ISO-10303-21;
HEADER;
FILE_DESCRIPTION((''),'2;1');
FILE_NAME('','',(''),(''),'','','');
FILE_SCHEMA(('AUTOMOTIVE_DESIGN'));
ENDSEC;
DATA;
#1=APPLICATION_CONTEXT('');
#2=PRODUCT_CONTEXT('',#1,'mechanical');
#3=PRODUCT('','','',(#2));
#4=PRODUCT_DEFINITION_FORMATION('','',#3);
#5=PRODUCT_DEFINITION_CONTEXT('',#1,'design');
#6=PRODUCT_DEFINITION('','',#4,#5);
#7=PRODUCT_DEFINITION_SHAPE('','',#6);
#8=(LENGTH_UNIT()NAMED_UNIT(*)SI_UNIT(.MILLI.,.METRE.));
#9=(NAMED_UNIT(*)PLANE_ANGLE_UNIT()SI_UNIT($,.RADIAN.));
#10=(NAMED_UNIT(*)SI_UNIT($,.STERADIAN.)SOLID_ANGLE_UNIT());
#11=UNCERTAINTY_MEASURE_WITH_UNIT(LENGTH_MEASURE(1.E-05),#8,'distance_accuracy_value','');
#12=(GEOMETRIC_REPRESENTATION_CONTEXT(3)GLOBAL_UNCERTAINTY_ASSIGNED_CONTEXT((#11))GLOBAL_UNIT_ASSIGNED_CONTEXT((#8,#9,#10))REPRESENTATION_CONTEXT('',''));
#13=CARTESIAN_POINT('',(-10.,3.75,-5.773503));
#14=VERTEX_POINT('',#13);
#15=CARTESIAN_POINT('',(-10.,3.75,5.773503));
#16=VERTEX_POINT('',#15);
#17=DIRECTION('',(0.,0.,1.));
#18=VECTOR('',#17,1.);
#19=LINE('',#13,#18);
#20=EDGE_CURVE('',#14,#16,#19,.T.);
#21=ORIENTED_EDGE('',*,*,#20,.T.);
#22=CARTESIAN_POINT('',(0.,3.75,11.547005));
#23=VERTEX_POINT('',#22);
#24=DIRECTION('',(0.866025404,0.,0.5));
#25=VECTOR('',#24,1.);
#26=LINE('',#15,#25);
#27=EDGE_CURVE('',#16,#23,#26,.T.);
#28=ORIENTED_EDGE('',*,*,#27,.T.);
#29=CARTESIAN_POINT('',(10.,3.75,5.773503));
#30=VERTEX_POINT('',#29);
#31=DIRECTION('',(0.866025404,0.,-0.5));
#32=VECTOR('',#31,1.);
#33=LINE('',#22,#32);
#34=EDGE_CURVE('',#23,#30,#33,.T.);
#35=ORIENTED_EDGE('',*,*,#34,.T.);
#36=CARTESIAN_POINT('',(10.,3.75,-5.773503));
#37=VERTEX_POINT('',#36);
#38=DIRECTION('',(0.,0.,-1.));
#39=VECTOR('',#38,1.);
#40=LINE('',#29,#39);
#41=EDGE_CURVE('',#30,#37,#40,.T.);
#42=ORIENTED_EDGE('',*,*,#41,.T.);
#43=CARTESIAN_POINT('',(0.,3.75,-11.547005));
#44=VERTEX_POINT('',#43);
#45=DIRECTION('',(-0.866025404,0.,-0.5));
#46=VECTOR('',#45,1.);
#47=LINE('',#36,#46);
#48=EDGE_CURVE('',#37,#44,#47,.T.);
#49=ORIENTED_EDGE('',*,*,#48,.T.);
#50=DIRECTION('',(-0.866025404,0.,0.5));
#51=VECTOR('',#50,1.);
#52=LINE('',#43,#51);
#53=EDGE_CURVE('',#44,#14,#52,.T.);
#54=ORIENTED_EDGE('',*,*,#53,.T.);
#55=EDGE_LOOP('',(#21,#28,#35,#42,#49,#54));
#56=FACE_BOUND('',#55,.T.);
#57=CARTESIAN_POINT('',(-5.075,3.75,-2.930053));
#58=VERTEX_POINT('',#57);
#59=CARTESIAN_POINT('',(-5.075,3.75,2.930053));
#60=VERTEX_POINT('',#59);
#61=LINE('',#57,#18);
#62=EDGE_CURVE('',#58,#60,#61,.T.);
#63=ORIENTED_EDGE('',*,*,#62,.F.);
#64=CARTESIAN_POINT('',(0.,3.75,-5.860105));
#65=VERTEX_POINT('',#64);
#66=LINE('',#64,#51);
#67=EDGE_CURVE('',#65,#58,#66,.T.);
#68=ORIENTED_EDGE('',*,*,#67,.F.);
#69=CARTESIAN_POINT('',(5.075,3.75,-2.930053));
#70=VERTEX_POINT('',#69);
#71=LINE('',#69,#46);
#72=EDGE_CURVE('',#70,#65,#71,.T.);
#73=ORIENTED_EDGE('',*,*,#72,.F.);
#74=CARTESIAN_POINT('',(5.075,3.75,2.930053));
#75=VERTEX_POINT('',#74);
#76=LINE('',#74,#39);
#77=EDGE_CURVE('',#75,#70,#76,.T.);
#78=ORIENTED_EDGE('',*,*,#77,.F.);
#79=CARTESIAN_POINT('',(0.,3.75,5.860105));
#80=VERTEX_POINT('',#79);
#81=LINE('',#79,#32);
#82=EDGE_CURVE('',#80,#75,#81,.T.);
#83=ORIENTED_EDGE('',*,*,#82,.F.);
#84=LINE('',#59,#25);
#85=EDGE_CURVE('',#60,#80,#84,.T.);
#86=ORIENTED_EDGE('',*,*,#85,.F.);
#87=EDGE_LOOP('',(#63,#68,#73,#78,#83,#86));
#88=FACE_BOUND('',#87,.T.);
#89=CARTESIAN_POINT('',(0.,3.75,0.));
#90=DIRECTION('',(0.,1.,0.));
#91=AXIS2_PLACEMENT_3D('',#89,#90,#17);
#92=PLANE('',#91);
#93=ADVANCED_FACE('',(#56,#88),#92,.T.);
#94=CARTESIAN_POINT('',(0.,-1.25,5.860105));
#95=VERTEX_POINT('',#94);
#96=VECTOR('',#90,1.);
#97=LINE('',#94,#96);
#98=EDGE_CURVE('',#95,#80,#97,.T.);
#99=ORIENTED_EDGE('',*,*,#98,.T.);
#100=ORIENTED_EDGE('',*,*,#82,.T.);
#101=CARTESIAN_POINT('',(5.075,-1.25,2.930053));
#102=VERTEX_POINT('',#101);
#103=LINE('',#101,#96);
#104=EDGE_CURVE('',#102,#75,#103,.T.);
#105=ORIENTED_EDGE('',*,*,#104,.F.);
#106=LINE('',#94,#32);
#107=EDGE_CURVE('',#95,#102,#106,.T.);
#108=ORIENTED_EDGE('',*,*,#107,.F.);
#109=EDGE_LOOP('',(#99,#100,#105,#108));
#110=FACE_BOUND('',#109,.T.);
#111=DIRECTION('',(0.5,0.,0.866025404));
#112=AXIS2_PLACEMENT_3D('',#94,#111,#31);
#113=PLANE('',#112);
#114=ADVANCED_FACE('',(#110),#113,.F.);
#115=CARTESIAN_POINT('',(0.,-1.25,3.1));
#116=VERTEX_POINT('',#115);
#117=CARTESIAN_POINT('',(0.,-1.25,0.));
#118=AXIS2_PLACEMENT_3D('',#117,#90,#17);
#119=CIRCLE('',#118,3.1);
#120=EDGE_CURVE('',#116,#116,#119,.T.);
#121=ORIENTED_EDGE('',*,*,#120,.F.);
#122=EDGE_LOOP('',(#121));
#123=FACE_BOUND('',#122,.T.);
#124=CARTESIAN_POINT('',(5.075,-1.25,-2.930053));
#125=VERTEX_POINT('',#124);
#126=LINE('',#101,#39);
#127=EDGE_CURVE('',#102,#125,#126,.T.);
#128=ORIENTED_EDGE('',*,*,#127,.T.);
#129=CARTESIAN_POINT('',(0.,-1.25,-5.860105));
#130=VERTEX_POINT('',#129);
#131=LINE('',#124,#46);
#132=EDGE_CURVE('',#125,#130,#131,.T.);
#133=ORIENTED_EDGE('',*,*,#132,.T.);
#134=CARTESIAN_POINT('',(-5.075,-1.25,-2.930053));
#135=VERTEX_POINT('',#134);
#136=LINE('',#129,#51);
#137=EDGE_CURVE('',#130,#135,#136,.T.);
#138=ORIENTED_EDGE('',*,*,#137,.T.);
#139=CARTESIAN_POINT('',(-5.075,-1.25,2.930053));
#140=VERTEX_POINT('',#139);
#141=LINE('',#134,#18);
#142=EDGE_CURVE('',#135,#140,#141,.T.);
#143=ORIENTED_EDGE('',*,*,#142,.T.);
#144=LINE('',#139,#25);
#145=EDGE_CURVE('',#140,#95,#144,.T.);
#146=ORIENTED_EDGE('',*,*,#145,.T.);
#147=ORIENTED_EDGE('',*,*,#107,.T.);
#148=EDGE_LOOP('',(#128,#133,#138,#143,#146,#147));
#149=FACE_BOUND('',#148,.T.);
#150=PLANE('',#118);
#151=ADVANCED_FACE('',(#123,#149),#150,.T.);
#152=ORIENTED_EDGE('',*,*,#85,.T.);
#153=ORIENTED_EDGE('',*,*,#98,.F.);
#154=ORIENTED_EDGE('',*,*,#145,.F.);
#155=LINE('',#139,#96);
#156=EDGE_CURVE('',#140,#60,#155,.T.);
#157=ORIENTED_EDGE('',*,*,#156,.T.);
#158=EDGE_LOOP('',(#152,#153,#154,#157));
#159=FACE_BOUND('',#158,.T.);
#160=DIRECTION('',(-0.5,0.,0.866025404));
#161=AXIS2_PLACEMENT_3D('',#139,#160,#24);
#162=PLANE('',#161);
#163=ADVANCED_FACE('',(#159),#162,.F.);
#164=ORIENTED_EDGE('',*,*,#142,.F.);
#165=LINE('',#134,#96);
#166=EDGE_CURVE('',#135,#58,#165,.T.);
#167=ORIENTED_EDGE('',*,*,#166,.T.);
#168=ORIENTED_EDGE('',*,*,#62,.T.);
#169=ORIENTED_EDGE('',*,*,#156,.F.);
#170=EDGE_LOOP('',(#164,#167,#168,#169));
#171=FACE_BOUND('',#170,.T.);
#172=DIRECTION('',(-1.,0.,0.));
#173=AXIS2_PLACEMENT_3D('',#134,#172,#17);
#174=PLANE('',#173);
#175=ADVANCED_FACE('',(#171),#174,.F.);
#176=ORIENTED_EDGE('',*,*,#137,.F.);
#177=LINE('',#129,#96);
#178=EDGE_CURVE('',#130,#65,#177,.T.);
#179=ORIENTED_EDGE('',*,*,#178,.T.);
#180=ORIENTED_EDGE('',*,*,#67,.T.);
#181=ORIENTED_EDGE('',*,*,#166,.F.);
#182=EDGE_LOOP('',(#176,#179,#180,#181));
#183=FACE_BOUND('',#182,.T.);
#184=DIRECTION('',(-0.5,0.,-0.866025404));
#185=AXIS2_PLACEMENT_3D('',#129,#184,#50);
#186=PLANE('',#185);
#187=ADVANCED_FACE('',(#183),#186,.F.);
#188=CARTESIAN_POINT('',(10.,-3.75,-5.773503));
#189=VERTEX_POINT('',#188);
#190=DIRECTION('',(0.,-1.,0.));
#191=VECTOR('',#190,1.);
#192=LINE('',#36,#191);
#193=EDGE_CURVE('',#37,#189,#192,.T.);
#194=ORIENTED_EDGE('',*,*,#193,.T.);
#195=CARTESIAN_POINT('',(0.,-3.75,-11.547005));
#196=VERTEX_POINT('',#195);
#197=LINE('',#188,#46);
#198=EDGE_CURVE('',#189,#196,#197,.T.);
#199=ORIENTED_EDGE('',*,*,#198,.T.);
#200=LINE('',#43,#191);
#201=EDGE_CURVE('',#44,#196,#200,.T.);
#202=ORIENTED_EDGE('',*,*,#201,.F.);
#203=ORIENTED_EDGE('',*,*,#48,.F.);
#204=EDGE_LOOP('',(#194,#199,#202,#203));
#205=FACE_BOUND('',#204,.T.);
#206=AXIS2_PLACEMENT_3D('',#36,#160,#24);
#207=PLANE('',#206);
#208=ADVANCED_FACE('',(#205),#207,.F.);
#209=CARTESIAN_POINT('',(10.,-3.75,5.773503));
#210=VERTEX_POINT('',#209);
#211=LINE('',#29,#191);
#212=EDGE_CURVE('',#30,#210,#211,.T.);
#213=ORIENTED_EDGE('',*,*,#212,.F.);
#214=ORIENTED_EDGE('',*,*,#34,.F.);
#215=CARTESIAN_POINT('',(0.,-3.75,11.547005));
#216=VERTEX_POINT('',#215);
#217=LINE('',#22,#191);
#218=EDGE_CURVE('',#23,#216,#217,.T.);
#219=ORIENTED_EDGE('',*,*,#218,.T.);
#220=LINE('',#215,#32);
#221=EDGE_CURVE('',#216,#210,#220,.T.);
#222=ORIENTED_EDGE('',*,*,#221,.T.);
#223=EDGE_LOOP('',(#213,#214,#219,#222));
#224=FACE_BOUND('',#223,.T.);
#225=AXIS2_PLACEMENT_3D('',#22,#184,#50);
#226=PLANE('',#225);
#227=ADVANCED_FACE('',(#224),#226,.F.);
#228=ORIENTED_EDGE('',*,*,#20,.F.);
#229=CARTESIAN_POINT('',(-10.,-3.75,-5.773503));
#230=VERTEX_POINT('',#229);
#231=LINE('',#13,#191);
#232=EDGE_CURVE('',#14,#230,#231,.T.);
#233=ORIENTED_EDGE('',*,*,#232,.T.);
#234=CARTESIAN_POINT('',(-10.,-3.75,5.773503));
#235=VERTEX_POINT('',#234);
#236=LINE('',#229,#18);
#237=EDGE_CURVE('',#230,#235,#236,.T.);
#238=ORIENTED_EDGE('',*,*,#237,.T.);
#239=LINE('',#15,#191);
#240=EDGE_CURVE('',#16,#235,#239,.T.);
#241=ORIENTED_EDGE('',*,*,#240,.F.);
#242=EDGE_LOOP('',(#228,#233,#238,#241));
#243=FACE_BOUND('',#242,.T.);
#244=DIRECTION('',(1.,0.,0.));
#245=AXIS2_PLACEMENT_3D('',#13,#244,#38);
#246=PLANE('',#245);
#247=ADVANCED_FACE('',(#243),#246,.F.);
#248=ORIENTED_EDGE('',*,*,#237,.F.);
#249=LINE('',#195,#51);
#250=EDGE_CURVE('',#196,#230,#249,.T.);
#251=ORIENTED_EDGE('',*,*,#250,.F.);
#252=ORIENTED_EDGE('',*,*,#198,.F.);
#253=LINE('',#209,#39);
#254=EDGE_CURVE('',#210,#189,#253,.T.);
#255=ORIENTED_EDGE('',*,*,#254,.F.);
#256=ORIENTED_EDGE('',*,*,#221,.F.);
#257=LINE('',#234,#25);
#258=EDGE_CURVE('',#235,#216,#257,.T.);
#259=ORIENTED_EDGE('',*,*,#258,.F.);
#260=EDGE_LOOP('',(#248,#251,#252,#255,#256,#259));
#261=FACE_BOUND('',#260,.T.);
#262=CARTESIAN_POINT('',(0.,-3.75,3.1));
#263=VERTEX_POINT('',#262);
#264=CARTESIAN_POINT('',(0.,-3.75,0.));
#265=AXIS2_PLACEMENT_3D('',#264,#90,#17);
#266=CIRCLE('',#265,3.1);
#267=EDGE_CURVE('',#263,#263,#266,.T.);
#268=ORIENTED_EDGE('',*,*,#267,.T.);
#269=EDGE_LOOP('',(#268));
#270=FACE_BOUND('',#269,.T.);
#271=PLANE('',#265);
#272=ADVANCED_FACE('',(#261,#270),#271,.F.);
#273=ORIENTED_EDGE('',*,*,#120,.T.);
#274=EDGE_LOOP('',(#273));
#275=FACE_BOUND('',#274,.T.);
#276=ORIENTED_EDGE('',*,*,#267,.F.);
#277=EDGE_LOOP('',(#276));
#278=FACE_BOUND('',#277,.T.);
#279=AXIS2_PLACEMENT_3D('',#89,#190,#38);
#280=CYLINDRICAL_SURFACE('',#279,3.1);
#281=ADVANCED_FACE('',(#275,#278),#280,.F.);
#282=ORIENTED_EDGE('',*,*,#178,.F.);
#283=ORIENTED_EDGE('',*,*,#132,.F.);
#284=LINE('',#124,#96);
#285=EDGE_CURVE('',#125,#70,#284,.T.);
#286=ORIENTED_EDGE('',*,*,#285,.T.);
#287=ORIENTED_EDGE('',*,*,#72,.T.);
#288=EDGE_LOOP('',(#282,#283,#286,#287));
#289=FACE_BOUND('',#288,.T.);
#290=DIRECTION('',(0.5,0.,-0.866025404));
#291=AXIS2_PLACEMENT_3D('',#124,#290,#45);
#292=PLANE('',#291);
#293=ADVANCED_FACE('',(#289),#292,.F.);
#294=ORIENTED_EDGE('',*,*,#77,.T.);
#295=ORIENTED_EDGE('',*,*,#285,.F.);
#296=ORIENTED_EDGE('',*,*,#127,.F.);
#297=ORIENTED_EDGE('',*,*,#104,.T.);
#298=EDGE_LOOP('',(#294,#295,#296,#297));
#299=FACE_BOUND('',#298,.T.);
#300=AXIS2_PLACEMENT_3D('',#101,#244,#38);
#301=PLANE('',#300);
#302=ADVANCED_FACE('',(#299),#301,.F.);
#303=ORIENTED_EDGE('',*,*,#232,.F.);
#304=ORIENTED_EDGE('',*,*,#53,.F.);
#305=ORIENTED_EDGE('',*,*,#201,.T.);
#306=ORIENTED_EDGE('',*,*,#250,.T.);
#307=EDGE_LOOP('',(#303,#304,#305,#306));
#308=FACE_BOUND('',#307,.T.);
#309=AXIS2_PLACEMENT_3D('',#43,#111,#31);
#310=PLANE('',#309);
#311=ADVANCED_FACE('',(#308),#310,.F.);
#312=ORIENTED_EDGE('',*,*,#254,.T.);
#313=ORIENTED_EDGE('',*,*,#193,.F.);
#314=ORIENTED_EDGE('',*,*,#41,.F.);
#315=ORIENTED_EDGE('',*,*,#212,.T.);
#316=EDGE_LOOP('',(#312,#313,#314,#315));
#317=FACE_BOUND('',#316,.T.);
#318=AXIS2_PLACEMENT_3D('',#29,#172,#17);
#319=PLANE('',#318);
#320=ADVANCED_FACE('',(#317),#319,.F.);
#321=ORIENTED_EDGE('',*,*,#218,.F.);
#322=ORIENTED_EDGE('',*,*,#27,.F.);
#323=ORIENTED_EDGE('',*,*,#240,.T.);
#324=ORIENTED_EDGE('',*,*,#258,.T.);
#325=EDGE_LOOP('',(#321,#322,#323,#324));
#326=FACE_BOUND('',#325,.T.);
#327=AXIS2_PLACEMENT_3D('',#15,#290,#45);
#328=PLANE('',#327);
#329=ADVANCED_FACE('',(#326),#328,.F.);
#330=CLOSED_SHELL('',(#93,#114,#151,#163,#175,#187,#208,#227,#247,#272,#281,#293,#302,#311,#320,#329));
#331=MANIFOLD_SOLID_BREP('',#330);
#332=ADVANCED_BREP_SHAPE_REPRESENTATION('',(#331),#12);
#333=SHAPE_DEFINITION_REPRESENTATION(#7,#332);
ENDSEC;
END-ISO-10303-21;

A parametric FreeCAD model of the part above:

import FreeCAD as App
import Part
import Sketcher

V = App.Vector
Q = App.Units.Quantity


def add_polygon(sketch, points):
    """Adds a closed chain of lines whose ends are joined by coincident constraints."""
    first, n = sketch.GeometryCount, len(points)
    for a, b in zip(points, points[1:] + points[:1]):
        sketch.addGeometry(Part.LineSegment(App.Vector(*a, 0), App.Vector(*b, 0)), False)
    for i in range(n):
        sketch.addConstraint(Sketcher.Constraint("Coincident", first + i, 2, first + (i + 1) % n, 1))

doc = App.newDocument("Part")
params = doc.addObject("Spreadsheet::Sheet", "Params")
for row, (alias, value) in enumerate([
    ("sketch1_diameter", "6.2 mm"),
    ("pad1_length", "7.5 mm"),
    ("pocket1_length", "5 mm"),
], start=1):
    params.set(f"A{row}", alias)
    params.set(f"B{row}", "=" + value)
    params.setAlias(f"B{row}", alias)

body = doc.addObject("PartDesign::Body", "Body")

# Sketch on XZ plane
sketch1 = body.newObject("Sketcher::SketchObject", "Sketch")
sketch1.AttachmentSupport = (doc.getObject("XZ_Plane"), [""])
sketch1.MapMode = "FlatFace"
add_polygon(sketch1, [(0, 11.5), (10, 5.8), (10, -5.8), (0, -11.5), (-10, -5.8), (-10, 5.8)])  # lines 0-5
sketch1.addGeometry(Part.Circle(V(0, 0, 0), V(0, 0, 1), 3.1), False)  # 6
sketch1.addConstraint(Sketcher.Constraint("Vertical", 1))
sketch1.addConstraint(Sketcher.Constraint("Vertical", 4))
sketch1.addConstraint(Sketcher.Constraint("Coincident", 6, 3, -1, 1))
sketch1.addConstraint(Sketcher.Constraint("Symmetric", 0, 2, 3, 2, -1, 1))
sketch1.addConstraint(Sketcher.Constraint("Symmetric", 2, 2, 5, 2, -1, 1))
sketch1.addConstraint(Sketcher.Constraint("PointOnObject", 2, 2, -2))
sketch1.addConstraint(Sketcher.Constraint("Parallel", 2, 5))
sketch1.addConstraint(Sketcher.Constraint("Horizontal", 1, 2, 3, 2))
sketch1.addConstraint(Sketcher.Constraint("Diameter", 6, Q("6.2 mm")))
sketch1.addConstraint(Sketcher.Constraint("Angle", 0, Q("-30 deg")))
sketch1.addConstraint(Sketcher.Constraint("DistanceX", -1, 1, 0, 2, Q("10 mm")))
sketch1.addConstraint(Sketcher.Constraint("DistanceY", 1, 2, 1, 1, Q("11.547005 mm")))
sketch1.setExpression("Constraints[14]", "Params.sketch1_diameter")
pad1 = body.newObject("PartDesign::Pad", "Pad")
pad1.Profile = sketch1
pad1.setExpression("Length", "Params.pad1_length")
pad1.Midplane = True

# Sketch on XZ plane
sketch2 = body.newObject("Sketcher::SketchObject", "Sketch001")
sketch2.AttachmentSupport = (doc.getObject("XZ_Plane"), [""])
sketch2.MapMode = "FlatFace"
sketch2.AttachmentOffset = App.Placement(V(0, 0, -3.75), App.Rotation())
add_polygon(sketch2, [(0, -6), (-5, -3), (-5, 3), (0, 6), (5, 3), (5, -3)])  # lines 0-5
sketch2.addConstraint(Sketcher.Constraint("Vertical", 1))
sketch2.addConstraint(Sketcher.Constraint("Vertical", 4))
sketch2.addConstraint(Sketcher.Constraint("Symmetric", 0, 2, 3, 2, -1, 1))
sketch2.addConstraint(Sketcher.Constraint("Symmetric", 2, 2, 5, 2, -1, 1))
sketch2.addConstraint(Sketcher.Constraint("PointOnObject", 2, 2, -2))
sketch2.addConstraint(Sketcher.Constraint("Parallel", 2, 5))
sketch2.addConstraint(Sketcher.Constraint("Horizontal", 1, 2, 3, 2))
sketch2.addConstraint(Sketcher.Constraint("Angle", 0, Q("150 deg")))
sketch2.addConstraint(Sketcher.Constraint("DistanceX", 1, 2, 3, 2, Q("10.15 mm")))
sketch2.addConstraint(Sketcher.Constraint("DistanceY", 1, 1, 1, 2, Q("5.860105 mm")))
pocket1 = body.newObject("PartDesign::Pocket", "Pocket")
pocket1.Profile = sketch2
pocket1.setExpression("Length", "Params.pocket1_length")
pocket1.Reversed = True

doc.recompute()
